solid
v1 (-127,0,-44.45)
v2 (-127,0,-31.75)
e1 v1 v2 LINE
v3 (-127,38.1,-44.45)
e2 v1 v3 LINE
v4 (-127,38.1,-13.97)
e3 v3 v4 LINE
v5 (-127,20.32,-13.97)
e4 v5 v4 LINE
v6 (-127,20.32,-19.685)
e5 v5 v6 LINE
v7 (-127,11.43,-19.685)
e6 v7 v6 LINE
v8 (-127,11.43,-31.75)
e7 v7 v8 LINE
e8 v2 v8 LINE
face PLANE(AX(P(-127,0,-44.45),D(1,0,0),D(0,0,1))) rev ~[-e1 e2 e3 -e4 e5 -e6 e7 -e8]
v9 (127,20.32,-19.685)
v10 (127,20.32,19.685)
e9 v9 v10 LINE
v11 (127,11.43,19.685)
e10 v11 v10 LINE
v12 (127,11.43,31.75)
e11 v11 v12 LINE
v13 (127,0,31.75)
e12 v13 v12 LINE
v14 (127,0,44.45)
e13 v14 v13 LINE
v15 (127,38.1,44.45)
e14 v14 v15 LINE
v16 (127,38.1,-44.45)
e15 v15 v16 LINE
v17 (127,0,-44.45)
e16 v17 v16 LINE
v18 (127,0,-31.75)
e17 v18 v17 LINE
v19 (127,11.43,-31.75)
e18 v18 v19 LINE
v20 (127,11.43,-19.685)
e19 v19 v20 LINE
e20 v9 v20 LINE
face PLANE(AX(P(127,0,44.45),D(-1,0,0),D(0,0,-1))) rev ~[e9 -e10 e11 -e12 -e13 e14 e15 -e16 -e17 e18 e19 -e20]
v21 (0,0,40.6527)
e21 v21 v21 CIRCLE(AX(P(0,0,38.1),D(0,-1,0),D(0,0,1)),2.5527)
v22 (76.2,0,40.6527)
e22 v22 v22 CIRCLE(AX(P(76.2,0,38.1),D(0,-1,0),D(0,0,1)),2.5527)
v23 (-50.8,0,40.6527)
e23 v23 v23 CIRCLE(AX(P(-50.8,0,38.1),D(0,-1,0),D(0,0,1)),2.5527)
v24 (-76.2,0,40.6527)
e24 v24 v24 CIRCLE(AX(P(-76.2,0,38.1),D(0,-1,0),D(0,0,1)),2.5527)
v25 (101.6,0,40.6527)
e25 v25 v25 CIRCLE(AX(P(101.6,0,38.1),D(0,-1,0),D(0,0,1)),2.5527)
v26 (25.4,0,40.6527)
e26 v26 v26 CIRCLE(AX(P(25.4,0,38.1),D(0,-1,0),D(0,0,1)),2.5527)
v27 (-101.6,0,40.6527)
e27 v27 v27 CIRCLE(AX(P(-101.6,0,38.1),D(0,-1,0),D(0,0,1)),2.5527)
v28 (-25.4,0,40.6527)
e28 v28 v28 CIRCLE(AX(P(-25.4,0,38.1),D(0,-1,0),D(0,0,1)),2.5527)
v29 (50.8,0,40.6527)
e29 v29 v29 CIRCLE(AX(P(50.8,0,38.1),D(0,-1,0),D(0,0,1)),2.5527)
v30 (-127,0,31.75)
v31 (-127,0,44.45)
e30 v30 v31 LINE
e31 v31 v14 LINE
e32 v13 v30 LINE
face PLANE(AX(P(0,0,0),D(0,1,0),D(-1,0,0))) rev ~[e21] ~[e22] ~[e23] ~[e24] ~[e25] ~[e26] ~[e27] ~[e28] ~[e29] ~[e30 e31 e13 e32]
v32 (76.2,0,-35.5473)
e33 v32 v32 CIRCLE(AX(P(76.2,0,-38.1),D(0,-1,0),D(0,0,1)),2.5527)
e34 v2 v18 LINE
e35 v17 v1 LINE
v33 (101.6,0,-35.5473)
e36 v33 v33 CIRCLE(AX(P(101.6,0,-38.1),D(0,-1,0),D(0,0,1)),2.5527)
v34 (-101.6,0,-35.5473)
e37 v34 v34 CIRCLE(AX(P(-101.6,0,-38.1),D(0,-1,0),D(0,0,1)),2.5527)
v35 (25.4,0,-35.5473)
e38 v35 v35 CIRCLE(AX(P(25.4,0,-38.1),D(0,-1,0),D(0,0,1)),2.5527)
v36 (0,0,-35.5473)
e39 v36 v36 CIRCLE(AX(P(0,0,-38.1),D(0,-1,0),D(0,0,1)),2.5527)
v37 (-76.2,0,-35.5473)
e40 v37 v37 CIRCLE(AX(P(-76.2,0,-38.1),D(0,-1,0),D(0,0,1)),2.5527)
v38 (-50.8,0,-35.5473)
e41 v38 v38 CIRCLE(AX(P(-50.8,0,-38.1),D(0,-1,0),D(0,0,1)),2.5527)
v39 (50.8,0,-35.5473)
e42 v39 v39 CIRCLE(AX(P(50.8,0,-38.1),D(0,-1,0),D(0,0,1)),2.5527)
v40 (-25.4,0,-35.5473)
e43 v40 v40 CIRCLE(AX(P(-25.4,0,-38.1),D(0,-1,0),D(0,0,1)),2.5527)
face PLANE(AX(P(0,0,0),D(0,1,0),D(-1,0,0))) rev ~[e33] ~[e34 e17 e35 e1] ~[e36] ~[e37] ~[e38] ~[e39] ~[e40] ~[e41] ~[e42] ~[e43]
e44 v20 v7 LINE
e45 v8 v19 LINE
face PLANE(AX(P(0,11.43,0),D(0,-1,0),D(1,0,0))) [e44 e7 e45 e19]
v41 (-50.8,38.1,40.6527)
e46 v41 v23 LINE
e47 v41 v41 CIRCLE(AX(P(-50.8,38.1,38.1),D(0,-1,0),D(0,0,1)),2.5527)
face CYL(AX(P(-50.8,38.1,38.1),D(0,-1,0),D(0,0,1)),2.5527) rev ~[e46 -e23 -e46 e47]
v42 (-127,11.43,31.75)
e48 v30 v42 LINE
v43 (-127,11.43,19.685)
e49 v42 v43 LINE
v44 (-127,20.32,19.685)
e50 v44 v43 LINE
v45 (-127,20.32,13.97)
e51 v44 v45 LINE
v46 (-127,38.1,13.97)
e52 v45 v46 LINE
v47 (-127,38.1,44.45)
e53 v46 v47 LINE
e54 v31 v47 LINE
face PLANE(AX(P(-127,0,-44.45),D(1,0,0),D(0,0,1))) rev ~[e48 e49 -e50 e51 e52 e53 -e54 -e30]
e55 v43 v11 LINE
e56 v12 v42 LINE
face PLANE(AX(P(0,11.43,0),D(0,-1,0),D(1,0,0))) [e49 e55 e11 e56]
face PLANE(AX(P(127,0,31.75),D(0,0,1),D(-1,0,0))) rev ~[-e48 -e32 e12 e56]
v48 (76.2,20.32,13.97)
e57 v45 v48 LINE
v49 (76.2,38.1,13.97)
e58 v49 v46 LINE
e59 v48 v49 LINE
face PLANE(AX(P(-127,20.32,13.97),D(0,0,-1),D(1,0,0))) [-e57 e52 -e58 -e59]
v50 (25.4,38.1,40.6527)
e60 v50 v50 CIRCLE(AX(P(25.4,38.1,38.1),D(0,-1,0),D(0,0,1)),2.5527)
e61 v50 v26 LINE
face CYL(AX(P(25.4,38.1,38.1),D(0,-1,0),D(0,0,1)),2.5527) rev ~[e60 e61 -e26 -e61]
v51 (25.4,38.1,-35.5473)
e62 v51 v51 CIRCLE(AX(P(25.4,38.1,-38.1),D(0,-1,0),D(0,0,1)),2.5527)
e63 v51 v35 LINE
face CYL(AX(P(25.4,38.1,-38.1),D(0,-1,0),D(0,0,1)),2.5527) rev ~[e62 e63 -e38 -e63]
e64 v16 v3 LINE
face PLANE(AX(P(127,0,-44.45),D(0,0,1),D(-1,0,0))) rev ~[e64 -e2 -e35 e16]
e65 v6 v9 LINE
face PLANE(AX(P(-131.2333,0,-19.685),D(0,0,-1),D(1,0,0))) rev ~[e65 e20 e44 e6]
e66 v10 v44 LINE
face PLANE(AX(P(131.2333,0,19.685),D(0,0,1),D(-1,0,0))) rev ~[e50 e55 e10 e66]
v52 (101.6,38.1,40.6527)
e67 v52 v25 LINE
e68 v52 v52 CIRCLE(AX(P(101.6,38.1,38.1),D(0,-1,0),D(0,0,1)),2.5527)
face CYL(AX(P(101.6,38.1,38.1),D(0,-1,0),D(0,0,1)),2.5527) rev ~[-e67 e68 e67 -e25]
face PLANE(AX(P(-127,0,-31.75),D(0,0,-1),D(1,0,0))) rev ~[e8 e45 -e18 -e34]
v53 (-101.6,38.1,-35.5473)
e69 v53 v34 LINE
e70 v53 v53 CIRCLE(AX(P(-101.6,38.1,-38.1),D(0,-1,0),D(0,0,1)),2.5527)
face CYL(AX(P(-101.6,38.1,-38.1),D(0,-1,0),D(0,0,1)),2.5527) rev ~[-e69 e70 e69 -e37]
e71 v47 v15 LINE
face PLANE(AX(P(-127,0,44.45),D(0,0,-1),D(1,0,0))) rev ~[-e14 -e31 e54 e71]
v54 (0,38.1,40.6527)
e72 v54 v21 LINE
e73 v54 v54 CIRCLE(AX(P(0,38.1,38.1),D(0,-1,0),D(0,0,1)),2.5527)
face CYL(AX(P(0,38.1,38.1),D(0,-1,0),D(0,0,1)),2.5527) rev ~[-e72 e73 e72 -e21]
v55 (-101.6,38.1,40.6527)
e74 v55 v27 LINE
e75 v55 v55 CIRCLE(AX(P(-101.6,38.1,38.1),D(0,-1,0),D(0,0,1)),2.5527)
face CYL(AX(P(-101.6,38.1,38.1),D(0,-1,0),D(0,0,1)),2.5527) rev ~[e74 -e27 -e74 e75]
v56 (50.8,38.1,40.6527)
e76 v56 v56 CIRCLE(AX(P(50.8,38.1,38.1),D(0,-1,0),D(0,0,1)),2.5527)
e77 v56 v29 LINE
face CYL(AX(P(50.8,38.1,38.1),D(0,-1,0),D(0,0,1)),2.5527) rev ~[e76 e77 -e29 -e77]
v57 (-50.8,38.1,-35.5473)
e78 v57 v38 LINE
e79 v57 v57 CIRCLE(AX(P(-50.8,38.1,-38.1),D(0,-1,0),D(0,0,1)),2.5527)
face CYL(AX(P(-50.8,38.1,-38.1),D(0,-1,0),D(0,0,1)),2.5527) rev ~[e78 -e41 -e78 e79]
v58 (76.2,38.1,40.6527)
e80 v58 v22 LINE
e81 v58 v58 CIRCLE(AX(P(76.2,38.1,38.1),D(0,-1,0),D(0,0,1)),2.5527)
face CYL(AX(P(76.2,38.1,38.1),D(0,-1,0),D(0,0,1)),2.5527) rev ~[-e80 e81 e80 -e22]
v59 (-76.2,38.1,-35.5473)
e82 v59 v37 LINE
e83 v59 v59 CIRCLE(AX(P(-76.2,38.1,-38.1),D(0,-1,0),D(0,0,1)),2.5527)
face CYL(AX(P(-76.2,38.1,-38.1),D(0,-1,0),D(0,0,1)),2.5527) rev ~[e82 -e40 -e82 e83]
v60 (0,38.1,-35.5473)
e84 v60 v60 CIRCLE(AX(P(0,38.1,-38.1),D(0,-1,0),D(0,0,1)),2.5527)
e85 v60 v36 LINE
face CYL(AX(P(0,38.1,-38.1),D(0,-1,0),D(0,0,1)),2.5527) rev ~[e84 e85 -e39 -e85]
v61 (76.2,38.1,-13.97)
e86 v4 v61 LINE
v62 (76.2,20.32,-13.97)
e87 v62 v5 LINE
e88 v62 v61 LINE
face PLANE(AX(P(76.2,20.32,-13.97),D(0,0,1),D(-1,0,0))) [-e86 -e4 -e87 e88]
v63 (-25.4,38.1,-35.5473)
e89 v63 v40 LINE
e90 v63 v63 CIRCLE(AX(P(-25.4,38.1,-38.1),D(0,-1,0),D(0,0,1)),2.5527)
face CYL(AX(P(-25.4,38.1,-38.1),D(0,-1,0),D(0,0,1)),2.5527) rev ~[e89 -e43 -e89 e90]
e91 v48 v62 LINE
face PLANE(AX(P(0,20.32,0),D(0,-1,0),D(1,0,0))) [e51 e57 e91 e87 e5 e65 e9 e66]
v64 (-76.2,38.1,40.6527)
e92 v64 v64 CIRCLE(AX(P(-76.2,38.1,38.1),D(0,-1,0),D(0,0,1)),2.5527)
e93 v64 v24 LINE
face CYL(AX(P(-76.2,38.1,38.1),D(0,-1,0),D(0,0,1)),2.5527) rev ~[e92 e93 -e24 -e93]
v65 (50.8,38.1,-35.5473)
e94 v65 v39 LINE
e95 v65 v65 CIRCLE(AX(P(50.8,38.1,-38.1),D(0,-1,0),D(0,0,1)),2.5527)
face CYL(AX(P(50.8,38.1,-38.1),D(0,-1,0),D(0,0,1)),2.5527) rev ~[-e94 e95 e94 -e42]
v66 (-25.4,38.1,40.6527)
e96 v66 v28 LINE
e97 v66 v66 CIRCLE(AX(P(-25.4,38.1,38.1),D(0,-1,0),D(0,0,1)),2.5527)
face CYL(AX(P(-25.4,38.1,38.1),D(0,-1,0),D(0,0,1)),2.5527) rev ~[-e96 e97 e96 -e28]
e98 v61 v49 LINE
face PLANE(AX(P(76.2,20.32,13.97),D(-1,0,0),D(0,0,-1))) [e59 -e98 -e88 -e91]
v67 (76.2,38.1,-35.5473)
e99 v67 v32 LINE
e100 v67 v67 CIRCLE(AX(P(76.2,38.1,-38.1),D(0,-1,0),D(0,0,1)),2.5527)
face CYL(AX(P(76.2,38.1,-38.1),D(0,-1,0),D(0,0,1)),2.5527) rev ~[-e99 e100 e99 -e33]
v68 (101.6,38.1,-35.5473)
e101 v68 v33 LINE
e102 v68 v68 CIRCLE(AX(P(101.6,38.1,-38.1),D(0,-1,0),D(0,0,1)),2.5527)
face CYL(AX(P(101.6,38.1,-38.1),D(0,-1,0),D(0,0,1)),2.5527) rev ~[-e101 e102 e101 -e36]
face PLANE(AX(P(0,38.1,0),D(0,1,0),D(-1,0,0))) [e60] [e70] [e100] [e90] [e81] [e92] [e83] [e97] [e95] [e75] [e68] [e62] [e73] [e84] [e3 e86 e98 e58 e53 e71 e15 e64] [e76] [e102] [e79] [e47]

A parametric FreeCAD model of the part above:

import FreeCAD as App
import Part
import Sketcher

V = App.Vector
Q = App.Units.Quantity


def add_polygon(sketch, points):
    """Adds a closed chain of lines whose ends are joined by coincident constraints."""
    first, n = sketch.GeometryCount, len(points)
    for a, b in zip(points, points[1:] + points[:1]):
        sketch.addGeometry(Part.LineSegment(App.Vector(*a, 0), App.Vector(*b, 0)), False)
    for i in range(n):
        sketch.addConstraint(Sketcher.Constraint("Coincident", first + i, 2, first + (i + 1) % n, 1))

doc = App.newDocument("Part")
body = doc.addObject("PartDesign::Body", "Body")

sketch1 = body.newObject("Sketcher::SketchObject", "Sketch")
sketch1.AttachmentSupport = (doc.getObject("XZ_Plane"), [""])
sketch1.MapMode = "FlatFace"
add_polygon(sketch1, [(-127, -44.45), (-127, 44.45), (127, 44.45), (127, -44.45)])
sketch1.addConstraint(Sketcher.Constraint("Vertical", 0))
sketch1.addConstraint(Sketcher.Constraint("Horizontal", 1))
sketch1.addConstraint(Sketcher.Constraint("Vertical", 2))
sketch1.addConstraint(Sketcher.Constraint("Horizontal", 3))
sketch1.addConstraint(Sketcher.Constraint("Symmetric", 0, 2, 2, 2, -1, 1))
sketch1.addConstraint(Sketcher.Constraint("DistanceX", 1, 1, 1, 2, Q("10 in")))
sketch1.addConstraint(Sketcher.Constraint("DistanceY", 0, 1, 0, 2, Q("3.5 in")))
pad1 = body.newObject("PartDesign::Pad", "Pad")
pad1.Profile = sketch1
pad1.Length = Q("1.5 in")
pad1.Reversed = True

sketch2 = body.newObject("Sketcher::SketchObject", "Sketch001")
sketch2.AttachmentSupport = (doc.getObject("XZ_Plane"), [""])
sketch2.MapMode = "FlatFace"
add_polygon(sketch2, [(131.2333, 19.685), (-131.2333, 19.685), (-131.2333, -19.685), (131.2333, -19.685)])
sketch2.addConstraint(Sketcher.Constraint("Horizontal", 0))
sketch2.addConstraint(Sketcher.Constraint("Vertical", 1))
sketch2.addConstraint(Sketcher.Constraint("Horizontal", 2))
sketch2.addConstraint(Sketcher.Constraint("Vertical", 3))
sketch2.addConstraint(Sketcher.Constraint("Symmetric", 0, 2, 2, 2, -1, 1))
sketch2.addConstraint(Sketcher.Constraint("DistanceY", 1, 2, 1, 1, Q("1.55 in")))
sketch2.addConstraint(Sketcher.Constraint("DistanceX", 0, 2, 0, 1, Q("262.4666 mm")))
pocket1 = body.newObject("PartDesign::Pocket", "Pocket")
pocket1.Profile = sketch2
pocket1.Length = Q("0.8 in")

sketch3 = body.newObject("Sketcher::SketchObject", "Sketch002")
sketch3.AttachmentSupport = (doc.getObject("XZ_Plane"), [""])
sketch3.MapMode = "FlatFace"
sketch3.AttachmentOffset = App.Placement(V(0, 0, -0.8 * 25.4), App.Rotation())
add_polygon(sketch3, [(-127, 13.97), (-127, -13.97), (76.2, -13.97), (76.2, 13.97)])
sketch3.addConstraint(Sketcher.Constraint("Vertical", 0))
sketch3.addConstraint(Sketcher.Constraint("Horizontal", 1))
sketch3.addConstraint(Sketcher.Constraint("Vertical", 2))
sketch3.addConstraint(Sketcher.Constraint("Horizontal", 3))
sketch3.addConstraint(Sketcher.Constraint("DistanceY", 0, 2, 0, 1, Q("1.1 in")))
sketch3.addConstraint(Sketcher.Constraint("DistanceX", 1, 1, 1, 2, Q("8 in")))
sketch3.addConstraint(Sketcher.Constraint("DistanceX", 0, 2, -1, 1, Q("5 in")))
sketch3.addConstraint(Sketcher.Constraint("DistanceY", 0, 2, -1, 1, Q("0.55 in")))
pocket2 = body.newObject("PartDesign::Pocket", "Pocket001")
pocket2.Profile = sketch3
pocket2.Type = "ThroughAll"

sketch4 = body.newObject("Sketcher::SketchObject", "Sketch003")
sketch4.AttachmentSupport = (doc.getObject("XZ_Plane"), [""])
sketch4.MapMode = "FlatFace"
add_polygon(sketch4, [(127, -31.75), (127, 31.75), (-127, 31.75), (-127, -31.75)])
sketch4.addConstraint(Sketcher.Constraint("Vertical", 0))
sketch4.addConstraint(Sketcher.Constraint("Horizontal", 1))
sketch4.addConstraint(Sketcher.Constraint("Vertical", 2))
sketch4.addConstraint(Sketcher.Constraint("Horizontal", 3))
sketch4.addConstraint(Sketcher.Constraint("Symmetric", 0, 2, 2, 2, -1, 1))
sketch4.addConstraint(Sketcher.Constraint("DistanceX", 1, 2, 1, 1, Q("10 in")))
sketch4.addConstraint(Sketcher.Constraint("DistanceY", 0, 1, 0, 2, Q("2.5 in")))
pocket3 = body.newObject("PartDesign::Pocket", "Pocket002")
pocket3.Profile = sketch4
pocket3.Length = Q("0.45 in")

sketch5 = body.newObject("Sketcher::SketchObject", "Sketch004")
sketch5.AttachmentSupport = (doc.getObject("XZ_Plane"), [""])
sketch5.MapMode = "FlatFace"
sketch5.AttachmentOffset = App.Placement(V(0, 0, -1.5 * 25.4), App.Rotation())
sketch5.addGeometry(Part.Circle(V(-101.6, -38.1, 0), V(0, 0, 1), 2.5527), False)
sketch5.addGeometry(Part.Circle(V(-76.2, -38.1, 0), V(0, 0, 1), 2.5527), False)
sketch5.addGeometry(Part.Circle(V(-50.8, -38.1, 0), V(0, 0, 1), 2.5527), False)
sketch5.addGeometry(Part.Circle(V(-25.4, -38.1, 0), V(0, 0, 1), 2.5527), False)
sketch5.addGeometry(Part.Circle(V(0, -38.1, 0), V(0, 0, 1), 2.5527), False)
sketch5.addGeometry(Part.Circle(V(25.4, -38.1, 0), V(0, 0, 1), 2.5527), False)
sketch5.addGeometry(Part.Circle(V(50.8, -38.1, 0), V(0, 0, 1), 2.5527), False)
sketch5.addGeometry(Part.Circle(V(76.2, -38.1, 0), V(0, 0, 1), 2.5527), False)
sketch5.addGeometry(Part.Circle(V(101.6, -38.1, 0), V(0, 0, 1), 2.5527), False)
sketch5.addGeometry(Part.Circle(V(-101.6, 38.1, 0), V(0, 0, 1), 2.5527), False)
sketch5.addGeometry(Part.Circle(V(-76.2, 38.1, 0), V(0, 0, 1), 2.5527), False)
sketch5.addGeometry(Part.Circle(V(-50.8, 38.1, 0), V(0, 0, 1), 2.5527), False)
sketch5.addGeometry(Part.Circle(V(-25.4, 38.1, 0), V(0, 0, 1), 2.5527), False)
sketch5.addGeometry(Part.Circle(V(0, 38.1, 0), V(0, 0, 1), 2.5527), False)
sketch5.addGeometry(Part.Circle(V(25.4, 38.1, 0), V(0, 0, 1), 2.5527), False)
sketch5.addGeometry(Part.Circle(V(50.8, 38.1, 0), V(0, 0, 1), 2.5527), False)
sketch5.addGeometry(Part.Circle(V(76.2, 38.1, 0), V(0, 0, 1), 2.5527), False)
sketch5.addGeometry(Part.Circle(V(101.6, 38.1, 0), V(0, 0, 1), 2.5527), False)
sketch5.addConstraint(Sketcher.Constraint("Equal", 0, 1))
sketch5.addConstraint(Sketcher.Constraint("Equal", 1, 2))
sketch5.addConstraint(Sketcher.Constraint("Equal", 2, 3))
sketch5.addConstraint(Sketcher.Constraint("Equal", 3, 4))
sketch5.addConstraint(Sketcher.Constraint("Equal", 4, 5))
sketch5.addConstraint(Sketcher.Constraint("Equal", 5, 6))
sketch5.addConstraint(Sketcher.Constraint("Equal", 6, 7))
sketch5.addConstraint(Sketcher.Constraint("Equal", 7, 8))
sketch5.addConstraint(Sketcher.Constraint("Equal", 8, 9))
sketch5.addConstraint(Sketcher.Constraint("Equal", 9, 10))
sketch5.addConstraint(Sketcher.Constraint("Equal", 10, 11))
sketch5.addConstraint(Sketcher.Constraint("Equal", 11, 12))
sketch5.addConstraint(Sketcher.Constraint("Equal", 12, 13))
sketch5.addConstraint(Sketcher.Constraint("Equal", 13, 14))
sketch5.addConstraint(Sketcher.Constraint("Equal", 14, 15))
sketch5.addConstraint(Sketcher.Constraint("Equal", 15, 16))
sketch5.addConstraint(Sketcher.Constraint("Equal", 16, 17))
sketch5.addConstraint(Sketcher.Constraint("Symmetric", 8, 3, 9, 3, -1, 1))
sketch5.addConstraint(Sketcher.Constraint("Symmetric", 7, 3, 10, 3, -1, 1))
sketch5.addConstraint(Sketcher.Constraint("Symmetric", 6, 3, 11, 3, -1, 1))
sketch5.addConstraint(Sketcher.Constraint("Symmetric", 5, 3, 12, 3, -1, 1))
sketch5.addConstraint(Sketcher.Constraint("Symmetric", 4, 3, 13, 3, -1, 1))
sketch5.addConstraint(Sketcher.Constraint("Symmetric", 3, 3, 14, 3, -1, 1))
sketch5.addConstraint(Sketcher.Constraint("Symmetric", 2, 3, 15, 3, -1, 1))
sketch5.addConstraint(Sketcher.Constraint("Symmetric", 1, 3, 16, 3, -1, 1))
sketch5.addConstraint(Sketcher.Constraint("Symmetric", 0, 3, 17, 3, -1, 1))
sketch5.addConstraint(Sketcher.Constraint("Symmetric", 3, 3, 5, 3, -2))
sketch5.addConstraint(Sketcher.Constraint("Symmetric", 2, 3, 6, 3, -2))
sketch5.addConstraint(Sketcher.Constraint("Symmetric", 1, 3, 7, 3, -2))
sketch5.addConstraint(Sketcher.Constraint("Symmetric", 0, 3, 8, 3, -2))
sketch5.addConstraint(Sketcher.Constraint("PointOnObject", 4, 3, -2))
sketch5.addConstraint(Sketcher.Constraint("Horizontal", 0, 3, 1, 3))
sketch5.addConstraint(Sketcher.Constraint("Horizontal", 1, 3, 2, 3))
sketch5.addConstraint(Sketcher.Constraint("Horizontal", 2, 3, 3, 3))
sketch5.addConstraint(Sketcher.Constraint("Horizontal", 3, 3, 4, 3))
sketch5.addConstraint(Sketcher.Constraint("Diameter", 0, Q("0.201 in")))
sketch5.addConstraint(Sketcher.Constraint("DistanceX", 0, 3, -1, 1, Q("4 in")))
sketch5.addConstraint(Sketcher.Constraint("DistanceX", 1, 3, -1, 1, Q("3 in")))
sketch5.addConstraint(Sketcher.Constraint("DistanceX", 2, 3, -1, 1, Q("2 in")))
sketch5.addConstraint(Sketcher.Constraint("DistanceX", 3, 3, -1, 1, Q("1 in")))
sketch5.addConstraint(Sketcher.Constraint("DistanceY", 0, 3, 9, 3, Q("3 in")))
doc.recompute()
hole = body.newObject("PartDesign::Hole", "Hole")
hole.Profile = sketch5
hole.ThreadType = "None"
hole.Diameter = Q("0.201 in")
hole.DepthType = "ThroughAll"
hole.Reversed = True

doc.recompute()
